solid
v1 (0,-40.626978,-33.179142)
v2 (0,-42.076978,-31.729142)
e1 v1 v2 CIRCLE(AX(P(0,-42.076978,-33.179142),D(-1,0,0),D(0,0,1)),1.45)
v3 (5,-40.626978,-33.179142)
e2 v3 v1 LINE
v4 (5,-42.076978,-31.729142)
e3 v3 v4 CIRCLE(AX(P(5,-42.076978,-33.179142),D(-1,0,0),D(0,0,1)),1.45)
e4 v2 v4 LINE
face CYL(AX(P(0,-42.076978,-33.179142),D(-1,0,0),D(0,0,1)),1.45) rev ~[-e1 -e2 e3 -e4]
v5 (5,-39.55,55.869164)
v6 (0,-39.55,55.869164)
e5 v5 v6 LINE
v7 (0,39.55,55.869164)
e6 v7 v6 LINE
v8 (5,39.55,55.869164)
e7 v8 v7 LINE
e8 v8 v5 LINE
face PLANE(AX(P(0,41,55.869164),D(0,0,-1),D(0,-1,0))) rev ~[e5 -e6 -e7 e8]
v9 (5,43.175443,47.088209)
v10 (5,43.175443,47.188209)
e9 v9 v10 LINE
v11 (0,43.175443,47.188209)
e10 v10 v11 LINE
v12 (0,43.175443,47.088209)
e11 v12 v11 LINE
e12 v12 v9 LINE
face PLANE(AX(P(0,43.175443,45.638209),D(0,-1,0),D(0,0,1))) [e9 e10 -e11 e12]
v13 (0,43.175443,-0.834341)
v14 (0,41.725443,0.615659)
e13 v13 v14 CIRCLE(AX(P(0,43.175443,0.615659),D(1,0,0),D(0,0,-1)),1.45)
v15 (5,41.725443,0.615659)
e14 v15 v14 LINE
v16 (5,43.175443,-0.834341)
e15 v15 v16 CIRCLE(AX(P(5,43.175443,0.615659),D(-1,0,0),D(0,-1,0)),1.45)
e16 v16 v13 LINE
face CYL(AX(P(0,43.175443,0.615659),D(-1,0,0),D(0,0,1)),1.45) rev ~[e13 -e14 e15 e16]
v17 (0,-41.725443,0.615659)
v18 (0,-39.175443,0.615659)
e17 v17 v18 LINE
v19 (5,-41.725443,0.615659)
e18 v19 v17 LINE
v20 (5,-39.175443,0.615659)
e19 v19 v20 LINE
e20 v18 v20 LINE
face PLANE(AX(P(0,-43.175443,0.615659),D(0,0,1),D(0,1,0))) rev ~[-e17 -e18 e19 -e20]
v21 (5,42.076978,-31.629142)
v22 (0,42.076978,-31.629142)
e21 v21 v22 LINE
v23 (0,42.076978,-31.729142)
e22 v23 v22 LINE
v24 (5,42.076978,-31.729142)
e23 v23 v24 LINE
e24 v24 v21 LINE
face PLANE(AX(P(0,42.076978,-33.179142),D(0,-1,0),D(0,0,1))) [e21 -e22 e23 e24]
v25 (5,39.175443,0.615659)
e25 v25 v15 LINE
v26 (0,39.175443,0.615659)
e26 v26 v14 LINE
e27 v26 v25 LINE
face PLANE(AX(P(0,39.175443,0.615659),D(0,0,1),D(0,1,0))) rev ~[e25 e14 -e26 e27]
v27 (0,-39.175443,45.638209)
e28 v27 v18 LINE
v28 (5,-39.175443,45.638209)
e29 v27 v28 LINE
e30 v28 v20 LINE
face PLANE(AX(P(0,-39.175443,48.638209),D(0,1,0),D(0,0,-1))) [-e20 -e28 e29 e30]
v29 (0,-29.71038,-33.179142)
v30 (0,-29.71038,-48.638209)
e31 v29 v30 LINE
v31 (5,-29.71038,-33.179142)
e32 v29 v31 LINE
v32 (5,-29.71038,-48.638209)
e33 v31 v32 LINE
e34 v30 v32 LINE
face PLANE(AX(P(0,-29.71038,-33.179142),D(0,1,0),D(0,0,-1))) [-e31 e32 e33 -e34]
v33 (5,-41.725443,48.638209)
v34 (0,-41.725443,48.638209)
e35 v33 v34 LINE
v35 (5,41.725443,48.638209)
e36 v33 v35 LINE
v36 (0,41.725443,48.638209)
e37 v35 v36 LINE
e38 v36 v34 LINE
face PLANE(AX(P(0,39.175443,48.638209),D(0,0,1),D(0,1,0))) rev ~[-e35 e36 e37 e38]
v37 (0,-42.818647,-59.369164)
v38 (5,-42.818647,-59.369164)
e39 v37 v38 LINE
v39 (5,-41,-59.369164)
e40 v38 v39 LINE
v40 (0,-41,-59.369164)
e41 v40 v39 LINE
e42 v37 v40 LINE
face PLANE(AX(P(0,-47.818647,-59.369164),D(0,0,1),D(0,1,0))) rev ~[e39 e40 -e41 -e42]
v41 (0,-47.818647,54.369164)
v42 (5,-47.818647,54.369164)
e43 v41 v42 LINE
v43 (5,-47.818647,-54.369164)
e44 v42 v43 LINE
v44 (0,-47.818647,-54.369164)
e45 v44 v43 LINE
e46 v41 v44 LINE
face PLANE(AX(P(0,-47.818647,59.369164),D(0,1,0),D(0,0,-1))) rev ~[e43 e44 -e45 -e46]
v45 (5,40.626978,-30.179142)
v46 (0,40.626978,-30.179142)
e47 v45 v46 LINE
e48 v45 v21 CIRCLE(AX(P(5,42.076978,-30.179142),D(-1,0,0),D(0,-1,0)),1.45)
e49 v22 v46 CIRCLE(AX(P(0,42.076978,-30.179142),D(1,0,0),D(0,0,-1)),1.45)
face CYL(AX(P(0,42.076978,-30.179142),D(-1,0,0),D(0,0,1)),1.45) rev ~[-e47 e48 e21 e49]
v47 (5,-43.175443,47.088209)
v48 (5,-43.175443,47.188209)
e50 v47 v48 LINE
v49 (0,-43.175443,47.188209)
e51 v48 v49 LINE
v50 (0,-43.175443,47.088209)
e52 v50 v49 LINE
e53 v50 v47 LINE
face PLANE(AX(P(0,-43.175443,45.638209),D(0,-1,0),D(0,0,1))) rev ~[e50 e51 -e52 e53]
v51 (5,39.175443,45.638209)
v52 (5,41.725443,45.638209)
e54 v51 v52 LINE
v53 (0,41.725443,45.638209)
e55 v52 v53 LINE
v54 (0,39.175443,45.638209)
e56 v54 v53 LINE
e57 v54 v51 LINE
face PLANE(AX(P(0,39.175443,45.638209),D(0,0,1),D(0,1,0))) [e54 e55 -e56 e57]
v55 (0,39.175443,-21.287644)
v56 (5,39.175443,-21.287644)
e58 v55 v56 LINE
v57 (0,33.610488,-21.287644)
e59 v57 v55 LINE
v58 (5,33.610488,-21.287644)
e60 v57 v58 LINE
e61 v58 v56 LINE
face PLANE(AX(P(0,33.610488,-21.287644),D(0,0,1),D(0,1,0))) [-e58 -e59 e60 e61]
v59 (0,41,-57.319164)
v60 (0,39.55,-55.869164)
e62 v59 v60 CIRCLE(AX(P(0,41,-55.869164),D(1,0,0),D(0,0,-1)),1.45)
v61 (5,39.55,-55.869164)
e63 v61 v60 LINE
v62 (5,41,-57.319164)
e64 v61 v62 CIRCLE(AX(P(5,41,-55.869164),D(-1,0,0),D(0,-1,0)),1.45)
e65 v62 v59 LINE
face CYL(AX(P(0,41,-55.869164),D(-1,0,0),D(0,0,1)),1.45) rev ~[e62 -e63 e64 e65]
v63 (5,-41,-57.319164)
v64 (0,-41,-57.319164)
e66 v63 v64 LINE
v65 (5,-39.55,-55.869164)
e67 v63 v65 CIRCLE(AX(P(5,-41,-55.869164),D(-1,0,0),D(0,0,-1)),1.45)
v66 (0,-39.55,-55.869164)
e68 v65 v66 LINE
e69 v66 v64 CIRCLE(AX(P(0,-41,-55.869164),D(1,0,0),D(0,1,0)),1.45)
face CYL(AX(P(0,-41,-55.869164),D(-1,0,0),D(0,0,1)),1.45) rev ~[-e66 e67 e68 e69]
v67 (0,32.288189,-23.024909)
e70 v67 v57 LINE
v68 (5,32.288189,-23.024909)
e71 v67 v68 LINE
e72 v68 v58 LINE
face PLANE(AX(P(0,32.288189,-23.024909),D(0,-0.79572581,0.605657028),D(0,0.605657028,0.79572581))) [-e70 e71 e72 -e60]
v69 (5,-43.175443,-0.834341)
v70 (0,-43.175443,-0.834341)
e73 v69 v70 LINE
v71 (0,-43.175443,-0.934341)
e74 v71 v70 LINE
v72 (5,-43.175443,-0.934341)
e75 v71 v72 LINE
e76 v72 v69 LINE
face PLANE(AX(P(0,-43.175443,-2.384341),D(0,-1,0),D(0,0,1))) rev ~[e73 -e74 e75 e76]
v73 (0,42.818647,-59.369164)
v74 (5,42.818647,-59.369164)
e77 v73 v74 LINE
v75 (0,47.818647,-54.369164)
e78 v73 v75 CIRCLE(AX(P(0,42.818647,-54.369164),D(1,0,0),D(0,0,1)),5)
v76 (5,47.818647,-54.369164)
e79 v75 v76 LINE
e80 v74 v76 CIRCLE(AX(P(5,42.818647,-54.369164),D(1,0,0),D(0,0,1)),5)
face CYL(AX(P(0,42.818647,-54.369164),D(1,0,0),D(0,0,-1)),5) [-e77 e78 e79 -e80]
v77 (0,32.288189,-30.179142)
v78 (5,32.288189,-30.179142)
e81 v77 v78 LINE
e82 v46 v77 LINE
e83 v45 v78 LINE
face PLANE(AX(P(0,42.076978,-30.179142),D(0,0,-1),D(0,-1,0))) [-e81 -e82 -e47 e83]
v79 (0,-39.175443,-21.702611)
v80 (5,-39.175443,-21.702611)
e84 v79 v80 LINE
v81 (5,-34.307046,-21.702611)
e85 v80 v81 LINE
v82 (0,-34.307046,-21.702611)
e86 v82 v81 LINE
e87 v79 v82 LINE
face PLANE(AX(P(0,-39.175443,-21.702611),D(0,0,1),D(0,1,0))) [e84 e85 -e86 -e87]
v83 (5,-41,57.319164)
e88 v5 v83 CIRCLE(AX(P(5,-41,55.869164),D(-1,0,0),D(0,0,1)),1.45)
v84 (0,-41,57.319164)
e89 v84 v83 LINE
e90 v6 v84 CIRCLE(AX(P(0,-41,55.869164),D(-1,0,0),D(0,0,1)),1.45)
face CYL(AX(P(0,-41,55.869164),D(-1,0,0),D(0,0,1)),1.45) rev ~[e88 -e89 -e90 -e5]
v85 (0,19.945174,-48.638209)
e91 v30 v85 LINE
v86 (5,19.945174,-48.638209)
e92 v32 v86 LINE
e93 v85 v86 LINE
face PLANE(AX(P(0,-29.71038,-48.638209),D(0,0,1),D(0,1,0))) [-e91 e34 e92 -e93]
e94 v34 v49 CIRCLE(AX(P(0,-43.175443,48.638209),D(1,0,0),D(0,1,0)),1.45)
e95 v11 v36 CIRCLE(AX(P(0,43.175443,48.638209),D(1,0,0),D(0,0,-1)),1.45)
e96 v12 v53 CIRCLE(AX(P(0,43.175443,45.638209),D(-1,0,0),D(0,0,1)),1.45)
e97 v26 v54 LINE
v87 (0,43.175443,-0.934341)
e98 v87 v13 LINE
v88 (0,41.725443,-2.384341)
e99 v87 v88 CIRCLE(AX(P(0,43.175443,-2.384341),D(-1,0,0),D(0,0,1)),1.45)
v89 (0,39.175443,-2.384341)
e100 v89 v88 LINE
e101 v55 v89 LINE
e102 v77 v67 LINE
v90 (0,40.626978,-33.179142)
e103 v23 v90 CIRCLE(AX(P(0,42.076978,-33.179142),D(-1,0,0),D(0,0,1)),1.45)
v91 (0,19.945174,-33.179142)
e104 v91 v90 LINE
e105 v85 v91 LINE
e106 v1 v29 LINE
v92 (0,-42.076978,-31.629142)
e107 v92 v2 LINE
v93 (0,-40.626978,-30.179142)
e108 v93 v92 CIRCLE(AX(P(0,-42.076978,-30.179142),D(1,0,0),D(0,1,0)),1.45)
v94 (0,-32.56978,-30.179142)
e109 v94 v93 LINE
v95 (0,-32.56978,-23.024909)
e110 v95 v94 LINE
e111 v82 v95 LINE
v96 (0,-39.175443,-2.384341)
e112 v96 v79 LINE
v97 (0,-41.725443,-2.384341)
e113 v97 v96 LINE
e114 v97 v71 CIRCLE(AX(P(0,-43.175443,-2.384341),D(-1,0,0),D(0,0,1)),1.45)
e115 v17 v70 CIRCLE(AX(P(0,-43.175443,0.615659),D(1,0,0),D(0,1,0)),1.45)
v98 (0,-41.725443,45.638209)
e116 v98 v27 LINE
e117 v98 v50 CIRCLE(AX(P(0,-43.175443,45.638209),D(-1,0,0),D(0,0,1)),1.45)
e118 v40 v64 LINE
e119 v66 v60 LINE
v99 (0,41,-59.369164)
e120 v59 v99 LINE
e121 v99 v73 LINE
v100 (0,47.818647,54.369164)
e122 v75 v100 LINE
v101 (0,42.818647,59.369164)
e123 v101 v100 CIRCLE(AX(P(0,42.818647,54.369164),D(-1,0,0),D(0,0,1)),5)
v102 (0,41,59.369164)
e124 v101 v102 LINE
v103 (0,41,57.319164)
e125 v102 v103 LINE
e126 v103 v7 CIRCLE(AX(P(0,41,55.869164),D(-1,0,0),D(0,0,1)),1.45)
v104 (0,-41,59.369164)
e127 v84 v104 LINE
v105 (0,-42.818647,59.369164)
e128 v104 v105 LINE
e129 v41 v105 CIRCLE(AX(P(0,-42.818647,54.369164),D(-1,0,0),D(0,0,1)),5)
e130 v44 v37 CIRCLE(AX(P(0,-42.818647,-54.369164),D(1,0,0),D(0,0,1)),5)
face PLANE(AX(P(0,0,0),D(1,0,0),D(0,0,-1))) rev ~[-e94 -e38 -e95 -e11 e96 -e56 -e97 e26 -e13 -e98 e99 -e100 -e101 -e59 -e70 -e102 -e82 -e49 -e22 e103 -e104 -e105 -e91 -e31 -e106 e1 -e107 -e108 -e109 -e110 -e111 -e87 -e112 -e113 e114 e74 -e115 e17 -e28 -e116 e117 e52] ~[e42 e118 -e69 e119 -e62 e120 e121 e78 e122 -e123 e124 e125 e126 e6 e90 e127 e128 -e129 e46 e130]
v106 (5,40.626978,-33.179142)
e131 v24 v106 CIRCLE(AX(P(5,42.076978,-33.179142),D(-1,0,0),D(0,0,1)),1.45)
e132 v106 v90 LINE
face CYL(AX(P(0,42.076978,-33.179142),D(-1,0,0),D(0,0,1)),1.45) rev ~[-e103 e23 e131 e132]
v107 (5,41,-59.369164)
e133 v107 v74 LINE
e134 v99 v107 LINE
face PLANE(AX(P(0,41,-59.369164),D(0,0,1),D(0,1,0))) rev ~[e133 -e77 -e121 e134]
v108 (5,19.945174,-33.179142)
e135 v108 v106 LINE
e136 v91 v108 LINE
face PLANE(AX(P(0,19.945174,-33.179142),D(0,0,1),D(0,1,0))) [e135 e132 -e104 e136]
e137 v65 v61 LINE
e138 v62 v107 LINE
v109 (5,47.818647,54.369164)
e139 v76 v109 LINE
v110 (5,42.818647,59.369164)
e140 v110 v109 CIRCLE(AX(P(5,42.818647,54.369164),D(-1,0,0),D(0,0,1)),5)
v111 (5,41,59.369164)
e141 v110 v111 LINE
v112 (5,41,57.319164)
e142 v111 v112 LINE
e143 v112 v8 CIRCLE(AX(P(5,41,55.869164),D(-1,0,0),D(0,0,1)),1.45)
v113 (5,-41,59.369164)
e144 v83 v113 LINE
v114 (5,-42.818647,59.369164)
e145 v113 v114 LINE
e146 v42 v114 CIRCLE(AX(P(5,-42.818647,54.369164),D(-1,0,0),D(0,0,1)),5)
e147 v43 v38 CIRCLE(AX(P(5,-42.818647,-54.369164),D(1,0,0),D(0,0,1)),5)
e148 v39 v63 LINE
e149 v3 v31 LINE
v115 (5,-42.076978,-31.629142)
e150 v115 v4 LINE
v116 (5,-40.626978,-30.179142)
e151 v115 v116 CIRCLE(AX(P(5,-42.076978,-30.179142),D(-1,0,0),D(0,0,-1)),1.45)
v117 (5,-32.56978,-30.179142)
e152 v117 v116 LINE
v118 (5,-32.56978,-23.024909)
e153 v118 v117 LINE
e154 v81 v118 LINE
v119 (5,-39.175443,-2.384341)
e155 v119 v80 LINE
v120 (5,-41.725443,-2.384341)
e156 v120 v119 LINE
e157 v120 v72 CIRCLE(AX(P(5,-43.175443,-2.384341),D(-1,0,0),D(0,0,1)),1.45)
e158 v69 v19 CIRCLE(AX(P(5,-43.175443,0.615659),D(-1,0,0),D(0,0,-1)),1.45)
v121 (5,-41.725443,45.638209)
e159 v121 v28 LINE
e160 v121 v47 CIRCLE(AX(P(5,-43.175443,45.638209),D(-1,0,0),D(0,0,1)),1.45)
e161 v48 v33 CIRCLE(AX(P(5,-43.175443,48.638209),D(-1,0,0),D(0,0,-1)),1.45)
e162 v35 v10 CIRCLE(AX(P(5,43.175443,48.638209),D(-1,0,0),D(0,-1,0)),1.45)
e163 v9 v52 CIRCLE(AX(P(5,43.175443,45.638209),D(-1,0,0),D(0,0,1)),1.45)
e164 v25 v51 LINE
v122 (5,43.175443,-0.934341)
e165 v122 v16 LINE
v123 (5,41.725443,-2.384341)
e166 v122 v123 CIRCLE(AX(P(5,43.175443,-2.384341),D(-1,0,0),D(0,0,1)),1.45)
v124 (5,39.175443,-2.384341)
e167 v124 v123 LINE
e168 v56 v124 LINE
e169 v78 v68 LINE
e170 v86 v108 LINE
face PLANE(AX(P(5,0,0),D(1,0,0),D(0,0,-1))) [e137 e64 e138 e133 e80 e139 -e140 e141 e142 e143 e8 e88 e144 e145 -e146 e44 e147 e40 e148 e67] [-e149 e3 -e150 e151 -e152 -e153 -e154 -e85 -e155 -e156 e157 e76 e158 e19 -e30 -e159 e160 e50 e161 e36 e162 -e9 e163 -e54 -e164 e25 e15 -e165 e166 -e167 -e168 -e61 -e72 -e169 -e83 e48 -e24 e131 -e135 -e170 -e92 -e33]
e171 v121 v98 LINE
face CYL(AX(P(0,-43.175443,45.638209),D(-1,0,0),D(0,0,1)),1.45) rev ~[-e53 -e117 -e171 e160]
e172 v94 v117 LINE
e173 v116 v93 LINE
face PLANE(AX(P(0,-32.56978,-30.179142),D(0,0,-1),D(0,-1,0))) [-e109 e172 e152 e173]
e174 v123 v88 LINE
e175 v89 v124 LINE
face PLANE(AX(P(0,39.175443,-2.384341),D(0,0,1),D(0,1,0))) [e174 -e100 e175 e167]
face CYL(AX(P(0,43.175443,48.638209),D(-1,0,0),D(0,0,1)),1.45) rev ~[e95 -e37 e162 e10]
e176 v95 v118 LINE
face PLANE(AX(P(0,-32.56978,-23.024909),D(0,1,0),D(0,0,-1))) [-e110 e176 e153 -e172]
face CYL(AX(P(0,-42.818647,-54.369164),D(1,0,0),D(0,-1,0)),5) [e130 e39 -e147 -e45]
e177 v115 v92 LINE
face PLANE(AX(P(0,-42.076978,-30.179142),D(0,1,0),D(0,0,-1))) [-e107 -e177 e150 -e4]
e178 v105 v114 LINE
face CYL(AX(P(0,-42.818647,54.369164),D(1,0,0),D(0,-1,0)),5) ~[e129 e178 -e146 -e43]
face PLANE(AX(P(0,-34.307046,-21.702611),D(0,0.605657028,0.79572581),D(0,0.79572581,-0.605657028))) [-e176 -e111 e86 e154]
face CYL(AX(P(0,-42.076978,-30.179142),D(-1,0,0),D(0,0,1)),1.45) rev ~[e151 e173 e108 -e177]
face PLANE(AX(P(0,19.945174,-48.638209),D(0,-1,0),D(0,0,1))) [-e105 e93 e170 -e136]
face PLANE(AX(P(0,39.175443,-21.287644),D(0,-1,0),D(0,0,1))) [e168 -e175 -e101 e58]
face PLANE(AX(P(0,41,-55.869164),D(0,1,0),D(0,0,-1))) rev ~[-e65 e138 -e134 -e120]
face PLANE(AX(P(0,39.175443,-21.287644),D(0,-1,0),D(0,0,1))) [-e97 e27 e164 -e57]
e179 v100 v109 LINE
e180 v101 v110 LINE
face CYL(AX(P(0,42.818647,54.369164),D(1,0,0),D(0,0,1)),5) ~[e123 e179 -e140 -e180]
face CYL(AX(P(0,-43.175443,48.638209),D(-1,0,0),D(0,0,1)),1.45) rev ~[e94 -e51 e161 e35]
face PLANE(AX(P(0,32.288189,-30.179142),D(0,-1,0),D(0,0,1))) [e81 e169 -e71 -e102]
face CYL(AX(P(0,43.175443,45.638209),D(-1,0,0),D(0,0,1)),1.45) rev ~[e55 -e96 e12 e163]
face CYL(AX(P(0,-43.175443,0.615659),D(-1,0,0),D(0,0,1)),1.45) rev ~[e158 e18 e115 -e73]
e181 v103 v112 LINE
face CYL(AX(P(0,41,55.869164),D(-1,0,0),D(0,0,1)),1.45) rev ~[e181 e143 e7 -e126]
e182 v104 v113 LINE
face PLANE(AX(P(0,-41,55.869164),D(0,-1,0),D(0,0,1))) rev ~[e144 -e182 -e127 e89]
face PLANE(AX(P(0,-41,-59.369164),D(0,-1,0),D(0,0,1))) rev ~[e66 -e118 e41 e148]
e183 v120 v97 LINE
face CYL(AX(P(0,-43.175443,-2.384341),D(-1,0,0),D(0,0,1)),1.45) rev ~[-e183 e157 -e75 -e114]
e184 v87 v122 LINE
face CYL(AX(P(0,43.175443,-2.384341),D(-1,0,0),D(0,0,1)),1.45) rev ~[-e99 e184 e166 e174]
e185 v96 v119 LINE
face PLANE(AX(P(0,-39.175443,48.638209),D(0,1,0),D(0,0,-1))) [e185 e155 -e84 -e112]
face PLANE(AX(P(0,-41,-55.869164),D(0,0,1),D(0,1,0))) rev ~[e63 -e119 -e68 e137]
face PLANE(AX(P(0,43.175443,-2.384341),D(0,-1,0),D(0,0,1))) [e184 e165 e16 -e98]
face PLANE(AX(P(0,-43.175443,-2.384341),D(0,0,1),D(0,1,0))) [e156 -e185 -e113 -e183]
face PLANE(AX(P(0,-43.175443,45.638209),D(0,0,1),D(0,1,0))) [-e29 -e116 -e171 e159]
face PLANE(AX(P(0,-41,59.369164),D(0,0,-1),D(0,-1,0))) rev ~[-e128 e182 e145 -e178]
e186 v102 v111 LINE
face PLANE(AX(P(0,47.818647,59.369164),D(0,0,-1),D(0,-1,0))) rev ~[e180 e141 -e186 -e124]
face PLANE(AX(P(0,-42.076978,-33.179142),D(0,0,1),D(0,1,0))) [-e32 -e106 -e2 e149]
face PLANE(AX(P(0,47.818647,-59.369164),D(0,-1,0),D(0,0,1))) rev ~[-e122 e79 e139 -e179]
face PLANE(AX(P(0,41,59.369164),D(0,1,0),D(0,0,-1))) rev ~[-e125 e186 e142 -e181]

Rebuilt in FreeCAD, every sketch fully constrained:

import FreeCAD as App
import Part
import Sketcher
from FreeCAD import Vector


def edges_at(feature, points):
    """Names of the edges that pass closest to the given points."""
    edges = feature.Shape.Edges
    near = lambda p: min(range(len(edges)), key=lambda i: edges[i].distToShape(Part.Vertex(*p))[0])
    return sorted({f"Edge{near(p) + 1}" for p in points})


def add_polygon(sketch, points):
    """Adds a closed chain of lines whose ends are joined by coincident constraints."""
    first, n = sketch.GeometryCount, len(points)
    for a, b in zip(points, points[1:] + points[:1]):
        sketch.addGeometry(Part.LineSegment(App.Vector(*a, 0), App.Vector(*b, 0)), False)
    for i in range(n):
        sketch.addConstraint(Sketcher.Constraint("Coincident", first + i, 2, first + (i + 1) % n, 1))

doc = App.newDocument("Part")
body = doc.addObject("PartDesign::Body", "Body")

# Sketch on YZ plane
sketch1 = body.newObject("Sketcher::SketchObject", "Sketch")
sketch1.AttachmentSupport = (doc.getObject("YZ_Plane"), [""])
sketch1.MapMode = "FlatFace"
add_polygon(sketch1, [(-47.8, 59.4), (-47.8, -59.4), (-41, -59.4), (-41, -55.9), (41, -55.9), (41, -59.4), (47.8, -59.4), (47.8, 59.4), (41, 59.4), (41, 55.9), (-41, 55.9), (-41, 59.4)])  # lines 0-11
add_polygon(sketch1, [(-34.3, -21.7), (-39.2, -21.7), (-39.2, 48.6), (39.2, 48.6), (39.2, -21.3), (33.6, -21.3), (32.3, -23), (32.3, -30.2), (42.1, -30.2), (42.1, -33.2), (19.9, -33.2), (19.9, -48.6), (-29.7, -48.6), (-29.7, -33.2), (-42.1, -33.2), (-42.1, -30.2), (-32.6, -30.2), (-32.6, -23)])  # lines 12-29
sketch1.addConstraint([
    Sketcher.Constraint("Vertical", 0),
    Sketcher.Constraint("Horizontal", 1),
    Sketcher.Constraint("Vertical", 2),
    Sketcher.Constraint("Horizontal", 3),
    Sketcher.Constraint("Vertical", 4),
    Sketcher.Constraint("Horizontal", 5),
    Sketcher.Constraint("Vertical", 6),
    Sketcher.Constraint("Horizontal", 7),
    Sketcher.Constraint("Vertical", 8),
    Sketcher.Constraint("Horizontal", 9),
    Sketcher.Constraint("Vertical", 10),
    Sketcher.Constraint("Horizontal", 11),
    Sketcher.Constraint("Horizontal", 12),
    Sketcher.Constraint("Vertical", 13),
    Sketcher.Constraint("Horizontal", 14),
    Sketcher.Constraint("Vertical", 15),
    Sketcher.Constraint("Horizontal", 16),
    Sketcher.Constraint("Vertical", 18),
    Sketcher.Constraint("Horizontal", 19),
    Sketcher.Constraint("Vertical", 20),
    Sketcher.Constraint("Horizontal", 21),
    Sketcher.Constraint("Vertical", 22),
    Sketcher.Constraint("Horizontal", 23),
    Sketcher.Constraint("Vertical", 24),
    Sketcher.Constraint("Horizontal", 25),
    Sketcher.Constraint("Vertical", 26),
    Sketcher.Constraint("Horizontal", 27),
    Sketcher.Constraint("Vertical", 28),
    Sketcher.Constraint("Symmetric", 0, 2, 6, 2, -1, 1),
    Sketcher.Constraint("Symmetric", 2, 2, 8, 2, -1, 1),
    Sketcher.Constraint("Symmetric", 4, 2, 10, 2, -1, 1),
    Sketcher.Constraint("Symmetric", 1, 2, 4, 2, -2),
    Sketcher.Constraint("Symmetric", 20, 2, 25, 2, -2),
    Sketcher.Constraint("Perpendicular", 17, 29),
    Sketcher.Constraint("Horizontal", 19, 2, 26, 2),
    Sketcher.Constraint("Horizontal", 17, 2, 28, 2),
    Sketcher.Constraint("Equal", 17, 29),
    Sketcher.Constraint("DistanceX", 3, 1, 3, 2, 82.0),
    Sketcher.Constraint("DistanceY", 20, 2, 20, 1, 3.0),
    Sketcher.Constraint("DistanceY", 2, 1, 2, 2, 3.5),
    Sketcher.Constraint("DistanceX", 25, 2, 25, 1, 12.366598),
    Sketcher.Constraint("DistanceX", 27, 1, 27, 2, 9.507198),
    Sketcher.Constraint("DistanceX", 19, 1, 19, 2, 9.788789),
    Sketcher.Constraint("DistanceY", 0, 2, 0, 1, 118.738328),
    Sketcher.Constraint("DistanceY", 13, 1, 13, 2, 70.340819),
    Sketcher.Constraint("DistanceX", 17, 2, 16, 2, 1.322299),
    Sketcher.Constraint("DistanceY", 23, 2, 12, 2, 26.935598),
    Sketcher.Constraint("DistanceX", 1, 1, 1, 2, 6.818647),
    Sketcher.Constraint("DistanceX", 12, 2, 12, 1, 4.868397),
    Sketcher.Constraint("DistanceX", 14, 1, 14, 2, 78.350886),
    Sketcher.Constraint("DistanceX", 16, 2, 16, 1, 5.564955),
    Sketcher.Constraint("DistanceX", 21, 2, 21, 1, 22.131804),
    Sketcher.Constraint("DistanceX", 23, 2, 23, 1, 49.655554),
    Sketcher.Constraint("DistanceY", 18, 2, 18, 1, 7.154232),
    Sketcher.Constraint("DistanceY", 12, 2, -1, 1, 21.702611),
])
pad1 = body.newObject("PartDesign::Pad", "Pad")
pad1.Profile = sketch1
pad1.Length = 5
doc.recompute()

fillet = body.newObject("PartDesign::Fillet", "Fillet")
fillet.Base = (pad1, edges_at(pad1, [
    (2.5, -47.819, -59.369),
    (2.5, -47.819, 59.369),
    (2.5, 47.819, 59.369),
    (2.5, 47.819, -59.369),
]))
fillet.Radius = 5

# Sketch on YZ plane
sketch2 = body.newObject("Sketcher::SketchObject", "Sketch001")
sketch2.AttachmentSupport = (doc.getObject("YZ_Plane"), [""])
sketch2.MapMode = "FlatFace"
add_polygon(sketch2, [(43.2, 45.6), (39.2, 45.6), (39.2, 48.6), (43.2, 48.6)])  # lines 0-3
sketch2.addConstraint([
    Sketcher.Constraint("Horizontal", 0),
    Sketcher.Constraint("Vertical", 1),
    Sketcher.Constraint("Horizontal", 2),
    Sketcher.Constraint("Vertical", 3),
    Sketcher.Constraint("DistanceX", 0, 2, 0, 1, 4.0),
    Sketcher.Constraint("DistanceY", 1, 1, 1, 2, 3.0),
    Sketcher.Constraint("DistanceY", -1, 1, 0, 2, 45.638209),
    Sketcher.Constraint("DistanceX", -1, 1, 0, 2, 39.175443),
])
pocket1 = body.newObject("PartDesign::Pocket", "Pocket")
pocket1.Profile = sketch2
pocket1.Type = "UpToFirst"
pocket1.Reversed = True

# Sketch on YZ plane
sketch3 = body.newObject("Sketcher::SketchObject", "Sketch002")
sketch3.AttachmentSupport = (doc.getObject("YZ_Plane"), [""])
sketch3.MapMode = "FlatFace"
add_polygon(sketch3, [(-39.2, 45.6), (-43.2, 45.6), (-43.2, 48.6), (-39.2, 48.6)])  # lines 0-3
sketch3.addConstraint([
    Sketcher.Constraint("Horizontal", 0),
    Sketcher.Constraint("Vertical", 1),
    Sketcher.Constraint("Horizontal", 2),
    Sketcher.Constraint("Vertical", 3),
    Sketcher.Constraint("DistanceX", 0, 2, 0, 1, 4.0),
    Sketcher.Constraint("DistanceY", 1, 1, 1, 2, 3.0),
    Sketcher.Constraint("DistanceY", -1, 1, 0, 2, 45.638209),
    Sketcher.Constraint("DistanceX", 0, 2, -1, 1, 43.175443),
])
pocket2 = body.newObject("PartDesign::Pocket", "Pocket001")
pocket2.Profile = sketch3
pocket2.Type = "UpToFirst"
pocket2.Reversed = True

# Sketch on YZ plane
sketch4 = body.newObject("Sketcher::SketchObject", "Sketch003")
sketch4.AttachmentSupport = (doc.getObject("YZ_Plane"), [""])
sketch4.MapMode = "FlatFace"
add_polygon(sketch4, [(-39.2, -2.4), (-43.2, -2.4), (-43.2, 0.6), (-39.2, 0.6)])  # lines 0-3
sketch4.addConstraint([
    Sketcher.Constraint("Horizontal", 0),
    Sketcher.Constraint("Vertical", 1),
    Sketcher.Constraint("Horizontal", 2),
    Sketcher.Constraint("Vertical", 3),
    Sketcher.Constraint("DistanceX", 0, 2, 0, 1, 4.0),
    Sketcher.Constraint("DistanceY", 1, 1, 1, 2, 3.0),
    Sketcher.Constraint("DistanceY", 0, 2, -1, 1, 2.384341),
    Sketcher.Constraint("DistanceX", 0, 2, -1, 1, 43.175443),
])
pocket3 = body.newObject("PartDesign::Pocket", "Pocket002")
pocket3.Profile = sketch4
pocket3.Type = "UpToFirst"
pocket3.Reversed = True

# Sketch on YZ plane
sketch5 = body.newObject("Sketcher::SketchObject", "Sketch004")
sketch5.AttachmentSupport = (doc.getObject("YZ_Plane"), [""])
sketch5.MapMode = "FlatFace"
add_polygon(sketch5, [(43.2, -2.4), (39.2, -2.4), (39.2, 0.6), (43.2, 0.6)])  # lines 0-3
sketch5.addConstraint([
    Sketcher.Constraint("Horizontal", 0),
    Sketcher.Constraint("Vertical", 1),
    Sketcher.Constraint("Horizontal", 2),
    Sketcher.Constraint("Vertical", 3),
    Sketcher.Constraint("DistanceX", 0, 2, 0, 1, 4.0),
    Sketcher.Constraint("DistanceY", 1, 1, 1, 2, 3.0),
    Sketcher.Constraint("DistanceY", 0, 2, -1, 1, 2.384341),
    Sketcher.Constraint("DistanceX", -1, 1, 0, 2, 39.175443),
])
pocket4 = body.newObject("PartDesign::Pocket", "Pocket003")
pocket4.Profile = sketch5
pocket4.Type = "UpToFirst"
pocket4.Reversed = True

# Sketch on YZ plane
sketch6 = body.newObject("Sketcher::SketchObject", "Sketch005")
sketch6.AttachmentSupport = (doc.getObject("YZ_Plane"), [""])
sketch6.MapMode = "FlatFace"
sketch6.addGeometry(Part.Circle(Vector(42.1, -33.2, 0), Vector(0, 0, 1), 1.4), False)
sketch6.addConstraint([
    Sketcher.Constraint("Diameter", 0, 2.9),
    Sketcher.Constraint("DistanceX", -1, 1, 0, 3, 42.076978),
    Sketcher.Constraint("DistanceY", 0, 3, -1, 1, 33.179142),
])
pocket5 = body.newObject("PartDesign::Pocket", "Pocket004")
pocket5.Profile = sketch6
pocket5.Type = "UpToFirst"
pocket5.Reversed = True

# Sketch on YZ plane
sketch7 = body.newObject("Sketcher::SketchObject", "Sketch006")
sketch7.AttachmentSupport = (doc.getObject("YZ_Plane"), [""])
sketch7.MapMode = "FlatFace"
sketch7.addGeometry(Part.Circle(Vector(42.1, -30.2, 0), Vector(0, 0, 1), 1.4), False)
sketch7.addConstraint([
    Sketcher.Constraint("Diameter", 0, 2.9),
    Sketcher.Constraint("DistanceX", -1, 1, 0, 3, 42.076978),
    Sketcher.Constraint("DistanceY", 0, 3, -1, 1, 30.179142),
])
pocket6 = body.newObject("PartDesign::Pocket", "Pocket005")
pocket6.Profile = sketch7
pocket6.Type = "UpToFirst"
pocket6.Reversed = True

# Sketch on YZ plane
sketch8 = body.newObject("Sketcher::SketchObject", "Sketch007")
sketch8.AttachmentSupport = (doc.getObject("YZ_Plane"), [""])
sketch8.MapMode = "FlatFace"
sketch8.addGeometry(Part.Circle(Vector(43.2, -2.4, 0), Vector(0, 0, 1), 1.4), False)
sketch8.addConstraint([
    Sketcher.Constraint("Diameter", 0, 2.9),
    Sketcher.Constraint("DistanceY", 0, 3, -1, 1, 2.384341),
    Sketcher.Constraint("DistanceX", -1, 1, 0, 3, 43.175443),
])
pocket7 = body.newObject("PartDesign::Pocket", "Pocket006")
pocket7.Profile = sketch8
pocket7.Type = "UpToFirst"
pocket7.Reversed = True

# Sketch on YZ plane
sketch9 = body.newObject("Sketcher::SketchObject", "Sketch008")
sketch9.AttachmentSupport = (doc.getObject("YZ_Plane"), [""])
sketch9.MapMode = "FlatFace"
sketch9.addGeometry(Part.Circle(Vector(43.2, 0.6, 0), Vector(0, 0, 1), 1.4), False)
sketch9.addConstraint([
    Sketcher.Constraint("Diameter", 0, 2.9),
    Sketcher.Constraint("DistanceY", -1, 1, 0, 3, 0.615659),
    Sketcher.Constraint("DistanceX", -1, 1, 0, 3, 43.175443),
])
pocket8 = body.newObject("PartDesign::Pocket", "Pocket007")
pocket8.Profile = sketch9
pocket8.Type = "UpToFirst"
pocket8.Reversed = True

# Sketch on YZ plane
sketch10 = body.newObject("Sketcher::SketchObject", "Sketch009")
sketch10.AttachmentSupport = (doc.getObject("YZ_Plane"), [""])
sketch10.MapMode = "FlatFace"
sketch10.addGeometry(Part.Circle(Vector(41, -55.9, 0), Vector(0, 0, 1), 1.4), False)
sketch10.addConstraint([
    Sketcher.Constraint("Diameter", 0, 2.9),
    Sketcher.Constraint("DistanceX", -1, 1, 0, 3, 41.0),
    Sketcher.Constraint("DistanceY", 0, 3, -1, 1, 55.869164),
])
pocket9 = body.newObject("PartDesign::Pocket", "Pocket008")
pocket9.Profile = sketch10
pocket9.Type = "UpToFirst"
pocket9.Reversed = True

# Sketch on YZ plane
sketch11 = body.newObject("Sketcher::SketchObject", "Sketch010")
sketch11.AttachmentSupport = (doc.getObject("YZ_Plane"), [""])
sketch11.MapMode = "FlatFace"
sketch11.addGeometry(Part.Circle(Vector(43.2, 45.6, 0), Vector(0, 0, 1), 1.4), False)
sketch11.addConstraint([
    Sketcher.Constraint("Diameter", 0, 2.9),
    Sketcher.Constraint("DistanceY", -1, 1, 0, 3, 45.638209),
    Sketcher.Constraint("DistanceX", -1, 1, 0, 3, 43.175443),
])
pocket10 = body.newObject("PartDesign::Pocket", "Pocket009")
pocket10.Profile = sketch11
pocket10.Type = "UpToFirst"
pocket10.Reversed = True

# Sketch on YZ plane
sketch12 = body.newObject("Sketcher::SketchObject", "Sketch011")
sketch12.AttachmentSupport = (doc.getObject("YZ_Plane"), [""])
sketch12.MapMode = "FlatFace"
sketch12.addGeometry(Part.Circle(Vector(43.2, 48.6, 0), Vector(0, 0, 1), 1.4), False)
sketch12.addConstraint([
    Sketcher.Constraint("Diameter", 0, 2.9),
    Sketcher.Constraint("DistanceY", -1, 1, 0, 3, 48.638209),
    Sketcher.Constraint("DistanceX", -1, 1, 0, 3, 43.175443),
])
pocket11 = body.newObject("PartDesign::Pocket", "Pocket010")
pocket11.Profile = sketch12
pocket11.Type = "UpToFirst"
pocket11.Reversed = True

# Sketch on YZ plane
sketch13 = body.newObject("Sketcher::SketchObject", "Sketch012")
sketch13.AttachmentSupport = (doc.getObject("YZ_Plane"), [""])
sketch13.MapMode = "FlatFace"
sketch13.addGeometry(Part.Circle(Vector(-43.2, 48.6, 0), Vector(0, 0, 1), 1.4), False)
sketch13.addConstraint([
    Sketcher.Constraint("Diameter", 0, 2.9),
    Sketcher.Constraint("DistanceY", -1, 1, 0, 3, 48.638209),
    Sketcher.Constraint("DistanceX", 0, 3, -1, 1, 43.175443),
])
pocket12 = body.newObject("PartDesign::Pocket", "Pocket011")
pocket12.Profile = sketch13
pocket12.Type = "UpToFirst"
pocket12.Reversed = True

# Sketch on YZ plane
sketch14 = body.newObject("Sketcher::SketchObject", "Sketch013")
sketch14.AttachmentSupport = (doc.getObject("YZ_Plane"), [""])
sketch14.MapMode = "FlatFace"
sketch14.addGeometry(Part.Circle(Vector(-43.2, 45.6, 0), Vector(0, 0, 1), 1.4), False)
sketch14.addConstraint([
    Sketcher.Constraint("Diameter", 0, 2.9),
    Sketcher.Constraint("DistanceY", -1, 1, 0, 3, 45.638209),
    Sketcher.Constraint("DistanceX", 0, 3, -1, 1, 43.175443),
])
pocket13 = body.newObject("PartDesign::Pocket", "Pocket012")
pocket13.Profile = sketch14
pocket13.Type = "UpToFirst"
pocket13.Reversed = True

# Sketch on YZ plane
sketch15 = body.newObject("Sketcher::SketchObject", "Sketch014")
sketch15.AttachmentSupport = (doc.getObject("YZ_Plane"), [""])
sketch15.MapMode = "FlatFace"
sketch15.addGeometry(Part.Circle(Vector(-43.2, 0.6, 0), Vector(0, 0, 1), 1.4), False)
sketch15.addConstraint([
    Sketcher.Constraint("Diameter", 0, 2.9),
    Sketcher.Constraint("DistanceY", -1, 1, 0, 3, 0.615659),
    Sketcher.Constraint("DistanceX", 0, 3, -1, 1, 43.175443),
])
pocket14 = body.newObject("PartDesign::Pocket", "Pocket013")
pocket14.Profile = sketch15
pocket14.Type = "UpToFirst"
pocket14.Reversed = True

# Sketch on YZ plane
sketch16 = body.newObject("Sketcher::SketchObject", "Sketch015")
sketch16.AttachmentSupport = (doc.getObject("YZ_Plane"), [""])
sketch16.MapMode = "FlatFace"
sketch16.addGeometry(Part.Circle(Vector(-43.2, -2.4, 0), Vector(0, 0, 1), 1.4), False)
sketch16.addConstraint([
    Sketcher.Constraint("Diameter", 0, 2.9),
    Sketcher.Constraint("DistanceY", 0, 3, -1, 1, 2.384341),
    Sketcher.Constraint("DistanceX", 0, 3, -1, 1, 43.175443),
])
pocket15 = body.newObject("PartDesign::Pocket", "Pocket014")
pocket15.Profile = sketch16
pocket15.Type = "UpToFirst"
pocket15.Reversed = True

# Sketch on YZ plane
sketch17 = body.newObject("Sketcher::SketchObject", "Sketch016")
sketch17.AttachmentSupport = (doc.getObject("YZ_Plane"), [""])
sketch17.MapMode = "FlatFace"
sketch17.addGeometry(Part.Circle(Vector(-42.1, -30.2, 0), Vector(0, 0, 1), 1.4), False)
sketch17.addConstraint([
    Sketcher.Constraint("Diameter", 0, 2.9),
    Sketcher.Constraint("DistanceX", 0, 3, -1, 1, 42.076978),
    Sketcher.Constraint("DistanceY", 0, 3, -1, 1, 30.179142),
])
pocket16 = body.newObject("PartDesign::Pocket", "Pocket015")
pocket16.Profile = sketch17
pocket16.Type = "UpToFirst"
pocket16.Reversed = True

# Sketch on YZ plane
sketch18 = body.newObject("Sketcher::SketchObject", "Sketch017")
sketch18.AttachmentSupport = (doc.getObject("YZ_Plane"), [""])
sketch18.MapMode = "FlatFace"
sketch18.addGeometry(Part.Circle(Vector(-42.1, -33.2, 0), Vector(0, 0, 1), 1.4), False)
sketch18.addConstraint([
    Sketcher.Constraint("Diameter", 0, 2.9),
    Sketcher.Constraint("DistanceX", 0, 3, -1, 1, 42.076978),
    Sketcher.Constraint("DistanceY", 0, 3, -1, 1, 33.179142),
])
pocket17 = body.newObject("PartDesign::Pocket", "Pocket016")
pocket17.Profile = sketch18
pocket17.Type = "UpToFirst"
pocket17.Reversed = True

# Sketch on YZ plane
sketch19 = body.newObject("Sketcher::SketchObject", "Sketch018")
sketch19.AttachmentSupport = (doc.getObject("YZ_Plane"), [""])
sketch19.MapMode = "FlatFace"
sketch19.addGeometry(Part.Circle(Vector(-41, -55.9, 0), Vector(0, 0, 1), 1.4), False)
sketch19.addConstraint([
    Sketcher.Constraint("Diameter", 0, 2.9),
    Sketcher.Constraint("DistanceX", 0, 3, -1, 1, 41.0),
    Sketcher.Constraint("DistanceY", 0, 3, -1, 1, 55.869164),
])
pocket18 = body.newObject("PartDesign::Pocket", "Pocket017")
pocket18.Profile = sketch19
pocket18.Type = "UpToFirst"
pocket18.Reversed = True

# Sketch on YZ plane
sketch20 = body.newObject("Sketcher::SketchObject", "Sketch019")
sketch20.AttachmentSupport = (doc.getObject("YZ_Plane"), [""])
sketch20.MapMode = "FlatFace"
sketch20.addGeometry(Part.Circle(Vector(-41, 55.9, 0), Vector(0, 0, 1), 1.4), False)
sketch20.addConstraint([
    Sketcher.Constraint("Diameter", 0, 2.9),
    Sketcher.Constraint("DistanceX", 0, 3, -1, 1, 41.0),
    Sketcher.Constraint("DistanceY", -1, 1, 0, 3, 55.869164),
])
pocket19 = body.newObject("PartDesign::Pocket", "Pocket018")
pocket19.Profile = sketch20
pocket19.Type = "UpToFirst"
pocket19.Reversed = True

# Sketch on YZ plane
sketch21 = body.newObject("Sketcher::SketchObject", "Sketch020")
sketch21.AttachmentSupport = (doc.getObject("YZ_Plane"), [""])
sketch21.MapMode = "FlatFace"
sketch21.addGeometry(Part.Circle(Vector(41, 55.9, 0), Vector(0, 0, 1), 1.4), False)
sketch21.addConstraint([
    Sketcher.Constraint("Diameter", 0, 2.9),
    Sketcher.Constraint("DistanceX", -1, 1, 0, 3, 41.0),
    Sketcher.Constraint("DistanceY", -1, 1, 0, 3, 55.869164),
])
pocket20 = body.newObject("PartDesign::Pocket", "Pocket019")
pocket20.Profile = sketch21
pocket20.Type = "UpToFirst"
pocket20.Reversed = True

doc.recompute()
